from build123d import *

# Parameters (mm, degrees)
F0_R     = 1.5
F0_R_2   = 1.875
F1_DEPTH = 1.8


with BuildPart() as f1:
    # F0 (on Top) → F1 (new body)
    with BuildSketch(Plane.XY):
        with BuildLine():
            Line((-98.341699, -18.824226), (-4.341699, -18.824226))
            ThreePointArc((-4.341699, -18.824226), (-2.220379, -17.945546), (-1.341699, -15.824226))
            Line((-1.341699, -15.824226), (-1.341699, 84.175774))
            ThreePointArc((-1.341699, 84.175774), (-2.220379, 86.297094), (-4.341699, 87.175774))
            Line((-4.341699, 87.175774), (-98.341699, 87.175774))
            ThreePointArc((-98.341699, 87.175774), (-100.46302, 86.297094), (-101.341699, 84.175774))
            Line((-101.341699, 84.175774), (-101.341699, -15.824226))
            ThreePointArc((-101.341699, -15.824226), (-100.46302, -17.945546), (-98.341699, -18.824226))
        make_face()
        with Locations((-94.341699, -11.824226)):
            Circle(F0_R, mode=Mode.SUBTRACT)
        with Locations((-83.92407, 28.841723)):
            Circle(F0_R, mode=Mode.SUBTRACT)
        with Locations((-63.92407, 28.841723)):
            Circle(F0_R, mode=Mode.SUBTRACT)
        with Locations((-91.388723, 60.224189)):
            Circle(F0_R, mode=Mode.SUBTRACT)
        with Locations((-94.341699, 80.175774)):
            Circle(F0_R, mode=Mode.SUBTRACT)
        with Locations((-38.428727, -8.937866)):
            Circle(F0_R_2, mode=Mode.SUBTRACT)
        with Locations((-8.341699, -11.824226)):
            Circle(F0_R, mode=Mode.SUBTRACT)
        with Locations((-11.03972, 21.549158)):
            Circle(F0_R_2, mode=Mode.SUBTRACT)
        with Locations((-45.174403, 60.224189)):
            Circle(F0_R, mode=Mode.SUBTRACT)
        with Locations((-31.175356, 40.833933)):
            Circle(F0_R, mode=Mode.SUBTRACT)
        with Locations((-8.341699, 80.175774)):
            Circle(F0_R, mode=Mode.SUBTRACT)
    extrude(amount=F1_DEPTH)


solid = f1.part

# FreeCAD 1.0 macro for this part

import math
import FreeCAD as App
import Part
import Sketcher

V = App.Vector

doc = App.newDocument("Part")
params = doc.addObject("Spreadsheet::Sheet", "Params")
for row, (alias, value) in enumerate([
    ("sketch1_diameter", "3 mm"),
    ("sketch1_radius", "3.000001 mm"),
    ("sketch1_diameter2", "3.75 mm"),
    ("sketch1_width", "94 mm"),
    ("sketch1_height", "100 mm"),
    ("pad1_length", "1.8 mm"),
], start=1):
    params.set(f"A{row}", alias)
    params.set(f"B{row}", "=" + value)
    params.setAlias(f"B{row}", alias)

body = doc.addObject("PartDesign::Body", "Body")

sketch1 = body.newObject("Sketcher::SketchObject", "Sketch")
sketch1.AttachmentSupport = (doc.getObject("XY_Plane"), [""])
sketch1.MapMode = "FlatFace"
sketch1.addGeometry(Part.LineSegment(V(-98.341699, -18.824226, 0), V(-4.341699, -18.824226, 0)), False)
sketch1.addGeometry(Part.ArcOfCircle(Part.Circle(V(-4.3417, -15.824225, 0), V(0, 0, 1), 3.000001), math.radians(-89.999978), math.radians(-0.000022)), False)
sketch1.addGeometry(Part.LineSegment(V(-1.341699, -15.824226, 0), V(-1.341699, 84.175774, 0)), False)
sketch1.addGeometry(Part.ArcOfCircle(Part.Circle(V(-4.3417, 84.175773, 0), V(0, 0, 1), 3.000001), math.radians(0.000022), math.radians(89.999978)), False)
sketch1.addGeometry(Part.LineSegment(V(-4.341699, 87.175774, 0), V(-98.341699, 87.175774, 0)), False)
sketch1.addGeometry(Part.ArcOfCircle(Part.Circle(V(-98.3417, 84.175775, 0), V(0, 0, 1), 2.999999), math.radians(89.99999), math.radians(180.00001)), False)
sketch1.addGeometry(Part.LineSegment(V(-101.341699, 84.175774, 0), V(-101.341699, -15.824226, 0)), False)
sketch1.addGeometry(Part.ArcOfCircle(Part.Circle(V(-98.3417, -15.824227, 0), V(0, 0, 1), 2.999999), math.radians(179.99999), math.radians(270.00001)), False)
sketch1.addGeometry(Part.Circle(V(-94.341699, -11.824226, 0), V(0, 0, 1), 1.5), False)
sketch1.addGeometry(Part.Circle(V(-83.92407, 28.841723, 0), V(0, 0, 1), 1.5), False)
sketch1.addGeometry(Part.Circle(V(-63.92407, 28.841723, 0), V(0, 0, 1), 1.5), False)
sketch1.addGeometry(Part.Circle(V(-38.428727, -8.937866, 0), V(0, 0, 1), 1.875), False)
sketch1.addGeometry(Part.Circle(V(-8.341699, -11.824226, 0), V(0, 0, 1), 1.5), False)
sketch1.addGeometry(Part.Circle(V(-11.03972, 21.549158, 0), V(0, 0, 1), 1.875), False)
sketch1.addGeometry(Part.Circle(V(-91.388723, 60.224189, 0), V(0, 0, 1), 1.5), False)
sketch1.addGeometry(Part.Circle(V(-94.341699, 80.175774, 0), V(0, 0, 1), 1.5), False)
sketch1.addGeometry(Part.Circle(V(-31.175356, 40.833933, 0), V(0, 0, 1), 1.5), False)
sketch1.addGeometry(Part.Circle(V(-45.174403, 60.224189, 0), V(0, 0, 1), 1.5), False)
sketch1.addGeometry(Part.Circle(V(-8.341699, 80.175774, 0), V(0, 0, 1), 1.5), False)
sketch1.addConstraint(Sketcher.Constraint("Tangent", 0, 2, 1, 1))
sketch1.addConstraint(Sketcher.Constraint("Tangent", 1, 2, 2, 1))
sketch1.addConstraint(Sketcher.Constraint("Tangent", 2, 2, 3, 1))
sketch1.addConstraint(Sketcher.Constraint("Tangent", 3, 2, 4, 1))
sketch1.addConstraint(Sketcher.Constraint("Tangent", 4, 2, 5, 1))
sketch1.addConstraint(Sketcher.Constraint("Tangent", 5, 2, 6, 1))
sketch1.addConstraint(Sketcher.Constraint("Tangent", 6, 2, 7, 1))
sketch1.addConstraint(Sketcher.Constraint("Tangent", 7, 2, 0, 1))
sketch1.addConstraint(Sketcher.Constraint("Horizontal", 0))
sketch1.addConstraint(Sketcher.Constraint("Vertical", 2))
sketch1.addConstraint(Sketcher.Constraint("Horizontal", 4))
sketch1.addConstraint(Sketcher.Constraint("Vertical", 6))
sketch1.addConstraint(Sketcher.Constraint("Equal", 1, 3))
sketch1.addConstraint(Sketcher.Constraint("Equal", 3, 5))
sketch1.addConstraint(Sketcher.Constraint("Equal", 5, 7))
sketch1.addConstraint(Sketcher.Constraint("Equal", 8, 9))
sketch1.addConstraint(Sketcher.Constraint("Equal", 9, 10))
sketch1.addConstraint(Sketcher.Constraint("Equal", 10, 12))
sketch1.addConstraint(Sketcher.Constraint("Equal", 11, 13))
sketch1.addConstraint(Sketcher.Constraint("Equal", 12, 14))
sketch1.addConstraint(Sketcher.Constraint("Equal", 14, 15))
sketch1.addConstraint(Sketcher.Constraint("Equal", 15, 16))
sketch1.addConstraint(Sketcher.Constraint("Equal", 16, 17))
sketch1.addConstraint(Sketcher.Constraint("Equal", 17, 18))
sketch1.addConstraint(Sketcher.Constraint("Horizontal", 9, 3, 10, 3))
sketch1.addConstraint(Sketcher.Constraint("Horizontal", 8, 3, 12, 3))
sketch1.addConstraint(Sketcher.Constraint("Horizontal", 14, 3, 17, 3))
sketch1.addConstraint(Sketcher.Constraint("Horizontal", 15, 3, 18, 3))
sketch1.addConstraint(Sketcher.Constraint("Vertical", 8, 3, 15, 3))
sketch1.addConstraint(Sketcher.Constraint("Vertical", 12, 3, 18, 3))
sketch1.addConstraint(Sketcher.Constraint("Diameter", 8, 3.0))
sketch1.addConstraint(Sketcher.Constraint("Radius", 1, 3.000001))
sketch1.addConstraint(Sketcher.Constraint("Diameter", 11, 3.75))
sketch1.addConstraint(Sketcher.Constraint("DistanceX", 0, 1, 0, 2, 94.0))
sketch1.addConstraint(Sketcher.Constraint("DistanceY", 2, 1, 2, 2, 100.0))
sketch1.addConstraint(Sketcher.Constraint("DistanceX", 7, 3, 8, 3, 4.000001))
sketch1.addConstraint(Sketcher.Constraint("DistanceY", 7, 3, 8, 3, 4.000001))
sketch1.addConstraint(Sketcher.Constraint("DistanceX", 9, 3, 10, 3, 20.0))
sketch1.addConstraint(Sketcher.Constraint("DistanceX", 12, 3, 1, 3, 3.999999))
sketch1.addConstraint(Sketcher.Constraint("DistanceY", 15, 3, 5, 3, 4.000001))
sketch1.addConstraint(Sketcher.Constraint("DistanceX", 1, 3, -1, 1, 4.3417))
sketch1.addConstraint(Sketcher.Constraint("DistanceY", 11, 3, 16, 3, 49.771799))
sketch1.addConstraint(Sketcher.Constraint("DistanceX", 9, 3, -1, 1, 83.92407))
sketch1.addConstraint(Sketcher.Constraint("DistanceX", 13, 3, -1, 1, 11.03972))
sketch1.addConstraint(Sketcher.Constraint("DistanceY", -1, 1, 14, 3, 60.224189))
sketch1.addConstraint(Sketcher.Constraint("DistanceY", 8, 3, 9, 3, 40.665949))
sketch1.addConstraint(Sketcher.Constraint("DistanceY", 1, 3, 11, 3, 6.886359))
sketch1.addConstraint(Sketcher.Constraint("DistanceX", 11, 3, 12, 3, 30.087028))
sketch1.addConstraint(Sketcher.Constraint("DistanceX", 11, 3, 16, 3, 7.253371))
sketch1.addConstraint(Sketcher.Constraint("DistanceX", 14, 3, 17, 3, 46.21432))
sketch1.addConstraint(Sketcher.Constraint("DistanceY", 1, 3, -1, 1, 15.824225))
sketch1.addConstraint(Sketcher.Constraint("DistanceY", -1, 1, 13, 3, 21.549158))
sketch1.addConstraint(Sketcher.Constraint("DistanceX", 14, 3, -1, 1, 91.388723))
sketch1.setExpression("Constraints[30]", "Params.sketch1_diameter")
sketch1.setExpression("Constraints[31]", "Params.sketch1_radius")
sketch1.setExpression("Constraints[32]", "Params.sketch1_diameter2")
sketch1.setExpression("Constraints[33]", "Params.sketch1_width")
sketch1.setExpression("Constraints[34]", "Params.sketch1_height")
pad1 = body.newObject("PartDesign::Pad", "Pad")
pad1.Profile = sketch1
pad1.setExpression("Length", "Params.pad1_length")

doc.recompute()
